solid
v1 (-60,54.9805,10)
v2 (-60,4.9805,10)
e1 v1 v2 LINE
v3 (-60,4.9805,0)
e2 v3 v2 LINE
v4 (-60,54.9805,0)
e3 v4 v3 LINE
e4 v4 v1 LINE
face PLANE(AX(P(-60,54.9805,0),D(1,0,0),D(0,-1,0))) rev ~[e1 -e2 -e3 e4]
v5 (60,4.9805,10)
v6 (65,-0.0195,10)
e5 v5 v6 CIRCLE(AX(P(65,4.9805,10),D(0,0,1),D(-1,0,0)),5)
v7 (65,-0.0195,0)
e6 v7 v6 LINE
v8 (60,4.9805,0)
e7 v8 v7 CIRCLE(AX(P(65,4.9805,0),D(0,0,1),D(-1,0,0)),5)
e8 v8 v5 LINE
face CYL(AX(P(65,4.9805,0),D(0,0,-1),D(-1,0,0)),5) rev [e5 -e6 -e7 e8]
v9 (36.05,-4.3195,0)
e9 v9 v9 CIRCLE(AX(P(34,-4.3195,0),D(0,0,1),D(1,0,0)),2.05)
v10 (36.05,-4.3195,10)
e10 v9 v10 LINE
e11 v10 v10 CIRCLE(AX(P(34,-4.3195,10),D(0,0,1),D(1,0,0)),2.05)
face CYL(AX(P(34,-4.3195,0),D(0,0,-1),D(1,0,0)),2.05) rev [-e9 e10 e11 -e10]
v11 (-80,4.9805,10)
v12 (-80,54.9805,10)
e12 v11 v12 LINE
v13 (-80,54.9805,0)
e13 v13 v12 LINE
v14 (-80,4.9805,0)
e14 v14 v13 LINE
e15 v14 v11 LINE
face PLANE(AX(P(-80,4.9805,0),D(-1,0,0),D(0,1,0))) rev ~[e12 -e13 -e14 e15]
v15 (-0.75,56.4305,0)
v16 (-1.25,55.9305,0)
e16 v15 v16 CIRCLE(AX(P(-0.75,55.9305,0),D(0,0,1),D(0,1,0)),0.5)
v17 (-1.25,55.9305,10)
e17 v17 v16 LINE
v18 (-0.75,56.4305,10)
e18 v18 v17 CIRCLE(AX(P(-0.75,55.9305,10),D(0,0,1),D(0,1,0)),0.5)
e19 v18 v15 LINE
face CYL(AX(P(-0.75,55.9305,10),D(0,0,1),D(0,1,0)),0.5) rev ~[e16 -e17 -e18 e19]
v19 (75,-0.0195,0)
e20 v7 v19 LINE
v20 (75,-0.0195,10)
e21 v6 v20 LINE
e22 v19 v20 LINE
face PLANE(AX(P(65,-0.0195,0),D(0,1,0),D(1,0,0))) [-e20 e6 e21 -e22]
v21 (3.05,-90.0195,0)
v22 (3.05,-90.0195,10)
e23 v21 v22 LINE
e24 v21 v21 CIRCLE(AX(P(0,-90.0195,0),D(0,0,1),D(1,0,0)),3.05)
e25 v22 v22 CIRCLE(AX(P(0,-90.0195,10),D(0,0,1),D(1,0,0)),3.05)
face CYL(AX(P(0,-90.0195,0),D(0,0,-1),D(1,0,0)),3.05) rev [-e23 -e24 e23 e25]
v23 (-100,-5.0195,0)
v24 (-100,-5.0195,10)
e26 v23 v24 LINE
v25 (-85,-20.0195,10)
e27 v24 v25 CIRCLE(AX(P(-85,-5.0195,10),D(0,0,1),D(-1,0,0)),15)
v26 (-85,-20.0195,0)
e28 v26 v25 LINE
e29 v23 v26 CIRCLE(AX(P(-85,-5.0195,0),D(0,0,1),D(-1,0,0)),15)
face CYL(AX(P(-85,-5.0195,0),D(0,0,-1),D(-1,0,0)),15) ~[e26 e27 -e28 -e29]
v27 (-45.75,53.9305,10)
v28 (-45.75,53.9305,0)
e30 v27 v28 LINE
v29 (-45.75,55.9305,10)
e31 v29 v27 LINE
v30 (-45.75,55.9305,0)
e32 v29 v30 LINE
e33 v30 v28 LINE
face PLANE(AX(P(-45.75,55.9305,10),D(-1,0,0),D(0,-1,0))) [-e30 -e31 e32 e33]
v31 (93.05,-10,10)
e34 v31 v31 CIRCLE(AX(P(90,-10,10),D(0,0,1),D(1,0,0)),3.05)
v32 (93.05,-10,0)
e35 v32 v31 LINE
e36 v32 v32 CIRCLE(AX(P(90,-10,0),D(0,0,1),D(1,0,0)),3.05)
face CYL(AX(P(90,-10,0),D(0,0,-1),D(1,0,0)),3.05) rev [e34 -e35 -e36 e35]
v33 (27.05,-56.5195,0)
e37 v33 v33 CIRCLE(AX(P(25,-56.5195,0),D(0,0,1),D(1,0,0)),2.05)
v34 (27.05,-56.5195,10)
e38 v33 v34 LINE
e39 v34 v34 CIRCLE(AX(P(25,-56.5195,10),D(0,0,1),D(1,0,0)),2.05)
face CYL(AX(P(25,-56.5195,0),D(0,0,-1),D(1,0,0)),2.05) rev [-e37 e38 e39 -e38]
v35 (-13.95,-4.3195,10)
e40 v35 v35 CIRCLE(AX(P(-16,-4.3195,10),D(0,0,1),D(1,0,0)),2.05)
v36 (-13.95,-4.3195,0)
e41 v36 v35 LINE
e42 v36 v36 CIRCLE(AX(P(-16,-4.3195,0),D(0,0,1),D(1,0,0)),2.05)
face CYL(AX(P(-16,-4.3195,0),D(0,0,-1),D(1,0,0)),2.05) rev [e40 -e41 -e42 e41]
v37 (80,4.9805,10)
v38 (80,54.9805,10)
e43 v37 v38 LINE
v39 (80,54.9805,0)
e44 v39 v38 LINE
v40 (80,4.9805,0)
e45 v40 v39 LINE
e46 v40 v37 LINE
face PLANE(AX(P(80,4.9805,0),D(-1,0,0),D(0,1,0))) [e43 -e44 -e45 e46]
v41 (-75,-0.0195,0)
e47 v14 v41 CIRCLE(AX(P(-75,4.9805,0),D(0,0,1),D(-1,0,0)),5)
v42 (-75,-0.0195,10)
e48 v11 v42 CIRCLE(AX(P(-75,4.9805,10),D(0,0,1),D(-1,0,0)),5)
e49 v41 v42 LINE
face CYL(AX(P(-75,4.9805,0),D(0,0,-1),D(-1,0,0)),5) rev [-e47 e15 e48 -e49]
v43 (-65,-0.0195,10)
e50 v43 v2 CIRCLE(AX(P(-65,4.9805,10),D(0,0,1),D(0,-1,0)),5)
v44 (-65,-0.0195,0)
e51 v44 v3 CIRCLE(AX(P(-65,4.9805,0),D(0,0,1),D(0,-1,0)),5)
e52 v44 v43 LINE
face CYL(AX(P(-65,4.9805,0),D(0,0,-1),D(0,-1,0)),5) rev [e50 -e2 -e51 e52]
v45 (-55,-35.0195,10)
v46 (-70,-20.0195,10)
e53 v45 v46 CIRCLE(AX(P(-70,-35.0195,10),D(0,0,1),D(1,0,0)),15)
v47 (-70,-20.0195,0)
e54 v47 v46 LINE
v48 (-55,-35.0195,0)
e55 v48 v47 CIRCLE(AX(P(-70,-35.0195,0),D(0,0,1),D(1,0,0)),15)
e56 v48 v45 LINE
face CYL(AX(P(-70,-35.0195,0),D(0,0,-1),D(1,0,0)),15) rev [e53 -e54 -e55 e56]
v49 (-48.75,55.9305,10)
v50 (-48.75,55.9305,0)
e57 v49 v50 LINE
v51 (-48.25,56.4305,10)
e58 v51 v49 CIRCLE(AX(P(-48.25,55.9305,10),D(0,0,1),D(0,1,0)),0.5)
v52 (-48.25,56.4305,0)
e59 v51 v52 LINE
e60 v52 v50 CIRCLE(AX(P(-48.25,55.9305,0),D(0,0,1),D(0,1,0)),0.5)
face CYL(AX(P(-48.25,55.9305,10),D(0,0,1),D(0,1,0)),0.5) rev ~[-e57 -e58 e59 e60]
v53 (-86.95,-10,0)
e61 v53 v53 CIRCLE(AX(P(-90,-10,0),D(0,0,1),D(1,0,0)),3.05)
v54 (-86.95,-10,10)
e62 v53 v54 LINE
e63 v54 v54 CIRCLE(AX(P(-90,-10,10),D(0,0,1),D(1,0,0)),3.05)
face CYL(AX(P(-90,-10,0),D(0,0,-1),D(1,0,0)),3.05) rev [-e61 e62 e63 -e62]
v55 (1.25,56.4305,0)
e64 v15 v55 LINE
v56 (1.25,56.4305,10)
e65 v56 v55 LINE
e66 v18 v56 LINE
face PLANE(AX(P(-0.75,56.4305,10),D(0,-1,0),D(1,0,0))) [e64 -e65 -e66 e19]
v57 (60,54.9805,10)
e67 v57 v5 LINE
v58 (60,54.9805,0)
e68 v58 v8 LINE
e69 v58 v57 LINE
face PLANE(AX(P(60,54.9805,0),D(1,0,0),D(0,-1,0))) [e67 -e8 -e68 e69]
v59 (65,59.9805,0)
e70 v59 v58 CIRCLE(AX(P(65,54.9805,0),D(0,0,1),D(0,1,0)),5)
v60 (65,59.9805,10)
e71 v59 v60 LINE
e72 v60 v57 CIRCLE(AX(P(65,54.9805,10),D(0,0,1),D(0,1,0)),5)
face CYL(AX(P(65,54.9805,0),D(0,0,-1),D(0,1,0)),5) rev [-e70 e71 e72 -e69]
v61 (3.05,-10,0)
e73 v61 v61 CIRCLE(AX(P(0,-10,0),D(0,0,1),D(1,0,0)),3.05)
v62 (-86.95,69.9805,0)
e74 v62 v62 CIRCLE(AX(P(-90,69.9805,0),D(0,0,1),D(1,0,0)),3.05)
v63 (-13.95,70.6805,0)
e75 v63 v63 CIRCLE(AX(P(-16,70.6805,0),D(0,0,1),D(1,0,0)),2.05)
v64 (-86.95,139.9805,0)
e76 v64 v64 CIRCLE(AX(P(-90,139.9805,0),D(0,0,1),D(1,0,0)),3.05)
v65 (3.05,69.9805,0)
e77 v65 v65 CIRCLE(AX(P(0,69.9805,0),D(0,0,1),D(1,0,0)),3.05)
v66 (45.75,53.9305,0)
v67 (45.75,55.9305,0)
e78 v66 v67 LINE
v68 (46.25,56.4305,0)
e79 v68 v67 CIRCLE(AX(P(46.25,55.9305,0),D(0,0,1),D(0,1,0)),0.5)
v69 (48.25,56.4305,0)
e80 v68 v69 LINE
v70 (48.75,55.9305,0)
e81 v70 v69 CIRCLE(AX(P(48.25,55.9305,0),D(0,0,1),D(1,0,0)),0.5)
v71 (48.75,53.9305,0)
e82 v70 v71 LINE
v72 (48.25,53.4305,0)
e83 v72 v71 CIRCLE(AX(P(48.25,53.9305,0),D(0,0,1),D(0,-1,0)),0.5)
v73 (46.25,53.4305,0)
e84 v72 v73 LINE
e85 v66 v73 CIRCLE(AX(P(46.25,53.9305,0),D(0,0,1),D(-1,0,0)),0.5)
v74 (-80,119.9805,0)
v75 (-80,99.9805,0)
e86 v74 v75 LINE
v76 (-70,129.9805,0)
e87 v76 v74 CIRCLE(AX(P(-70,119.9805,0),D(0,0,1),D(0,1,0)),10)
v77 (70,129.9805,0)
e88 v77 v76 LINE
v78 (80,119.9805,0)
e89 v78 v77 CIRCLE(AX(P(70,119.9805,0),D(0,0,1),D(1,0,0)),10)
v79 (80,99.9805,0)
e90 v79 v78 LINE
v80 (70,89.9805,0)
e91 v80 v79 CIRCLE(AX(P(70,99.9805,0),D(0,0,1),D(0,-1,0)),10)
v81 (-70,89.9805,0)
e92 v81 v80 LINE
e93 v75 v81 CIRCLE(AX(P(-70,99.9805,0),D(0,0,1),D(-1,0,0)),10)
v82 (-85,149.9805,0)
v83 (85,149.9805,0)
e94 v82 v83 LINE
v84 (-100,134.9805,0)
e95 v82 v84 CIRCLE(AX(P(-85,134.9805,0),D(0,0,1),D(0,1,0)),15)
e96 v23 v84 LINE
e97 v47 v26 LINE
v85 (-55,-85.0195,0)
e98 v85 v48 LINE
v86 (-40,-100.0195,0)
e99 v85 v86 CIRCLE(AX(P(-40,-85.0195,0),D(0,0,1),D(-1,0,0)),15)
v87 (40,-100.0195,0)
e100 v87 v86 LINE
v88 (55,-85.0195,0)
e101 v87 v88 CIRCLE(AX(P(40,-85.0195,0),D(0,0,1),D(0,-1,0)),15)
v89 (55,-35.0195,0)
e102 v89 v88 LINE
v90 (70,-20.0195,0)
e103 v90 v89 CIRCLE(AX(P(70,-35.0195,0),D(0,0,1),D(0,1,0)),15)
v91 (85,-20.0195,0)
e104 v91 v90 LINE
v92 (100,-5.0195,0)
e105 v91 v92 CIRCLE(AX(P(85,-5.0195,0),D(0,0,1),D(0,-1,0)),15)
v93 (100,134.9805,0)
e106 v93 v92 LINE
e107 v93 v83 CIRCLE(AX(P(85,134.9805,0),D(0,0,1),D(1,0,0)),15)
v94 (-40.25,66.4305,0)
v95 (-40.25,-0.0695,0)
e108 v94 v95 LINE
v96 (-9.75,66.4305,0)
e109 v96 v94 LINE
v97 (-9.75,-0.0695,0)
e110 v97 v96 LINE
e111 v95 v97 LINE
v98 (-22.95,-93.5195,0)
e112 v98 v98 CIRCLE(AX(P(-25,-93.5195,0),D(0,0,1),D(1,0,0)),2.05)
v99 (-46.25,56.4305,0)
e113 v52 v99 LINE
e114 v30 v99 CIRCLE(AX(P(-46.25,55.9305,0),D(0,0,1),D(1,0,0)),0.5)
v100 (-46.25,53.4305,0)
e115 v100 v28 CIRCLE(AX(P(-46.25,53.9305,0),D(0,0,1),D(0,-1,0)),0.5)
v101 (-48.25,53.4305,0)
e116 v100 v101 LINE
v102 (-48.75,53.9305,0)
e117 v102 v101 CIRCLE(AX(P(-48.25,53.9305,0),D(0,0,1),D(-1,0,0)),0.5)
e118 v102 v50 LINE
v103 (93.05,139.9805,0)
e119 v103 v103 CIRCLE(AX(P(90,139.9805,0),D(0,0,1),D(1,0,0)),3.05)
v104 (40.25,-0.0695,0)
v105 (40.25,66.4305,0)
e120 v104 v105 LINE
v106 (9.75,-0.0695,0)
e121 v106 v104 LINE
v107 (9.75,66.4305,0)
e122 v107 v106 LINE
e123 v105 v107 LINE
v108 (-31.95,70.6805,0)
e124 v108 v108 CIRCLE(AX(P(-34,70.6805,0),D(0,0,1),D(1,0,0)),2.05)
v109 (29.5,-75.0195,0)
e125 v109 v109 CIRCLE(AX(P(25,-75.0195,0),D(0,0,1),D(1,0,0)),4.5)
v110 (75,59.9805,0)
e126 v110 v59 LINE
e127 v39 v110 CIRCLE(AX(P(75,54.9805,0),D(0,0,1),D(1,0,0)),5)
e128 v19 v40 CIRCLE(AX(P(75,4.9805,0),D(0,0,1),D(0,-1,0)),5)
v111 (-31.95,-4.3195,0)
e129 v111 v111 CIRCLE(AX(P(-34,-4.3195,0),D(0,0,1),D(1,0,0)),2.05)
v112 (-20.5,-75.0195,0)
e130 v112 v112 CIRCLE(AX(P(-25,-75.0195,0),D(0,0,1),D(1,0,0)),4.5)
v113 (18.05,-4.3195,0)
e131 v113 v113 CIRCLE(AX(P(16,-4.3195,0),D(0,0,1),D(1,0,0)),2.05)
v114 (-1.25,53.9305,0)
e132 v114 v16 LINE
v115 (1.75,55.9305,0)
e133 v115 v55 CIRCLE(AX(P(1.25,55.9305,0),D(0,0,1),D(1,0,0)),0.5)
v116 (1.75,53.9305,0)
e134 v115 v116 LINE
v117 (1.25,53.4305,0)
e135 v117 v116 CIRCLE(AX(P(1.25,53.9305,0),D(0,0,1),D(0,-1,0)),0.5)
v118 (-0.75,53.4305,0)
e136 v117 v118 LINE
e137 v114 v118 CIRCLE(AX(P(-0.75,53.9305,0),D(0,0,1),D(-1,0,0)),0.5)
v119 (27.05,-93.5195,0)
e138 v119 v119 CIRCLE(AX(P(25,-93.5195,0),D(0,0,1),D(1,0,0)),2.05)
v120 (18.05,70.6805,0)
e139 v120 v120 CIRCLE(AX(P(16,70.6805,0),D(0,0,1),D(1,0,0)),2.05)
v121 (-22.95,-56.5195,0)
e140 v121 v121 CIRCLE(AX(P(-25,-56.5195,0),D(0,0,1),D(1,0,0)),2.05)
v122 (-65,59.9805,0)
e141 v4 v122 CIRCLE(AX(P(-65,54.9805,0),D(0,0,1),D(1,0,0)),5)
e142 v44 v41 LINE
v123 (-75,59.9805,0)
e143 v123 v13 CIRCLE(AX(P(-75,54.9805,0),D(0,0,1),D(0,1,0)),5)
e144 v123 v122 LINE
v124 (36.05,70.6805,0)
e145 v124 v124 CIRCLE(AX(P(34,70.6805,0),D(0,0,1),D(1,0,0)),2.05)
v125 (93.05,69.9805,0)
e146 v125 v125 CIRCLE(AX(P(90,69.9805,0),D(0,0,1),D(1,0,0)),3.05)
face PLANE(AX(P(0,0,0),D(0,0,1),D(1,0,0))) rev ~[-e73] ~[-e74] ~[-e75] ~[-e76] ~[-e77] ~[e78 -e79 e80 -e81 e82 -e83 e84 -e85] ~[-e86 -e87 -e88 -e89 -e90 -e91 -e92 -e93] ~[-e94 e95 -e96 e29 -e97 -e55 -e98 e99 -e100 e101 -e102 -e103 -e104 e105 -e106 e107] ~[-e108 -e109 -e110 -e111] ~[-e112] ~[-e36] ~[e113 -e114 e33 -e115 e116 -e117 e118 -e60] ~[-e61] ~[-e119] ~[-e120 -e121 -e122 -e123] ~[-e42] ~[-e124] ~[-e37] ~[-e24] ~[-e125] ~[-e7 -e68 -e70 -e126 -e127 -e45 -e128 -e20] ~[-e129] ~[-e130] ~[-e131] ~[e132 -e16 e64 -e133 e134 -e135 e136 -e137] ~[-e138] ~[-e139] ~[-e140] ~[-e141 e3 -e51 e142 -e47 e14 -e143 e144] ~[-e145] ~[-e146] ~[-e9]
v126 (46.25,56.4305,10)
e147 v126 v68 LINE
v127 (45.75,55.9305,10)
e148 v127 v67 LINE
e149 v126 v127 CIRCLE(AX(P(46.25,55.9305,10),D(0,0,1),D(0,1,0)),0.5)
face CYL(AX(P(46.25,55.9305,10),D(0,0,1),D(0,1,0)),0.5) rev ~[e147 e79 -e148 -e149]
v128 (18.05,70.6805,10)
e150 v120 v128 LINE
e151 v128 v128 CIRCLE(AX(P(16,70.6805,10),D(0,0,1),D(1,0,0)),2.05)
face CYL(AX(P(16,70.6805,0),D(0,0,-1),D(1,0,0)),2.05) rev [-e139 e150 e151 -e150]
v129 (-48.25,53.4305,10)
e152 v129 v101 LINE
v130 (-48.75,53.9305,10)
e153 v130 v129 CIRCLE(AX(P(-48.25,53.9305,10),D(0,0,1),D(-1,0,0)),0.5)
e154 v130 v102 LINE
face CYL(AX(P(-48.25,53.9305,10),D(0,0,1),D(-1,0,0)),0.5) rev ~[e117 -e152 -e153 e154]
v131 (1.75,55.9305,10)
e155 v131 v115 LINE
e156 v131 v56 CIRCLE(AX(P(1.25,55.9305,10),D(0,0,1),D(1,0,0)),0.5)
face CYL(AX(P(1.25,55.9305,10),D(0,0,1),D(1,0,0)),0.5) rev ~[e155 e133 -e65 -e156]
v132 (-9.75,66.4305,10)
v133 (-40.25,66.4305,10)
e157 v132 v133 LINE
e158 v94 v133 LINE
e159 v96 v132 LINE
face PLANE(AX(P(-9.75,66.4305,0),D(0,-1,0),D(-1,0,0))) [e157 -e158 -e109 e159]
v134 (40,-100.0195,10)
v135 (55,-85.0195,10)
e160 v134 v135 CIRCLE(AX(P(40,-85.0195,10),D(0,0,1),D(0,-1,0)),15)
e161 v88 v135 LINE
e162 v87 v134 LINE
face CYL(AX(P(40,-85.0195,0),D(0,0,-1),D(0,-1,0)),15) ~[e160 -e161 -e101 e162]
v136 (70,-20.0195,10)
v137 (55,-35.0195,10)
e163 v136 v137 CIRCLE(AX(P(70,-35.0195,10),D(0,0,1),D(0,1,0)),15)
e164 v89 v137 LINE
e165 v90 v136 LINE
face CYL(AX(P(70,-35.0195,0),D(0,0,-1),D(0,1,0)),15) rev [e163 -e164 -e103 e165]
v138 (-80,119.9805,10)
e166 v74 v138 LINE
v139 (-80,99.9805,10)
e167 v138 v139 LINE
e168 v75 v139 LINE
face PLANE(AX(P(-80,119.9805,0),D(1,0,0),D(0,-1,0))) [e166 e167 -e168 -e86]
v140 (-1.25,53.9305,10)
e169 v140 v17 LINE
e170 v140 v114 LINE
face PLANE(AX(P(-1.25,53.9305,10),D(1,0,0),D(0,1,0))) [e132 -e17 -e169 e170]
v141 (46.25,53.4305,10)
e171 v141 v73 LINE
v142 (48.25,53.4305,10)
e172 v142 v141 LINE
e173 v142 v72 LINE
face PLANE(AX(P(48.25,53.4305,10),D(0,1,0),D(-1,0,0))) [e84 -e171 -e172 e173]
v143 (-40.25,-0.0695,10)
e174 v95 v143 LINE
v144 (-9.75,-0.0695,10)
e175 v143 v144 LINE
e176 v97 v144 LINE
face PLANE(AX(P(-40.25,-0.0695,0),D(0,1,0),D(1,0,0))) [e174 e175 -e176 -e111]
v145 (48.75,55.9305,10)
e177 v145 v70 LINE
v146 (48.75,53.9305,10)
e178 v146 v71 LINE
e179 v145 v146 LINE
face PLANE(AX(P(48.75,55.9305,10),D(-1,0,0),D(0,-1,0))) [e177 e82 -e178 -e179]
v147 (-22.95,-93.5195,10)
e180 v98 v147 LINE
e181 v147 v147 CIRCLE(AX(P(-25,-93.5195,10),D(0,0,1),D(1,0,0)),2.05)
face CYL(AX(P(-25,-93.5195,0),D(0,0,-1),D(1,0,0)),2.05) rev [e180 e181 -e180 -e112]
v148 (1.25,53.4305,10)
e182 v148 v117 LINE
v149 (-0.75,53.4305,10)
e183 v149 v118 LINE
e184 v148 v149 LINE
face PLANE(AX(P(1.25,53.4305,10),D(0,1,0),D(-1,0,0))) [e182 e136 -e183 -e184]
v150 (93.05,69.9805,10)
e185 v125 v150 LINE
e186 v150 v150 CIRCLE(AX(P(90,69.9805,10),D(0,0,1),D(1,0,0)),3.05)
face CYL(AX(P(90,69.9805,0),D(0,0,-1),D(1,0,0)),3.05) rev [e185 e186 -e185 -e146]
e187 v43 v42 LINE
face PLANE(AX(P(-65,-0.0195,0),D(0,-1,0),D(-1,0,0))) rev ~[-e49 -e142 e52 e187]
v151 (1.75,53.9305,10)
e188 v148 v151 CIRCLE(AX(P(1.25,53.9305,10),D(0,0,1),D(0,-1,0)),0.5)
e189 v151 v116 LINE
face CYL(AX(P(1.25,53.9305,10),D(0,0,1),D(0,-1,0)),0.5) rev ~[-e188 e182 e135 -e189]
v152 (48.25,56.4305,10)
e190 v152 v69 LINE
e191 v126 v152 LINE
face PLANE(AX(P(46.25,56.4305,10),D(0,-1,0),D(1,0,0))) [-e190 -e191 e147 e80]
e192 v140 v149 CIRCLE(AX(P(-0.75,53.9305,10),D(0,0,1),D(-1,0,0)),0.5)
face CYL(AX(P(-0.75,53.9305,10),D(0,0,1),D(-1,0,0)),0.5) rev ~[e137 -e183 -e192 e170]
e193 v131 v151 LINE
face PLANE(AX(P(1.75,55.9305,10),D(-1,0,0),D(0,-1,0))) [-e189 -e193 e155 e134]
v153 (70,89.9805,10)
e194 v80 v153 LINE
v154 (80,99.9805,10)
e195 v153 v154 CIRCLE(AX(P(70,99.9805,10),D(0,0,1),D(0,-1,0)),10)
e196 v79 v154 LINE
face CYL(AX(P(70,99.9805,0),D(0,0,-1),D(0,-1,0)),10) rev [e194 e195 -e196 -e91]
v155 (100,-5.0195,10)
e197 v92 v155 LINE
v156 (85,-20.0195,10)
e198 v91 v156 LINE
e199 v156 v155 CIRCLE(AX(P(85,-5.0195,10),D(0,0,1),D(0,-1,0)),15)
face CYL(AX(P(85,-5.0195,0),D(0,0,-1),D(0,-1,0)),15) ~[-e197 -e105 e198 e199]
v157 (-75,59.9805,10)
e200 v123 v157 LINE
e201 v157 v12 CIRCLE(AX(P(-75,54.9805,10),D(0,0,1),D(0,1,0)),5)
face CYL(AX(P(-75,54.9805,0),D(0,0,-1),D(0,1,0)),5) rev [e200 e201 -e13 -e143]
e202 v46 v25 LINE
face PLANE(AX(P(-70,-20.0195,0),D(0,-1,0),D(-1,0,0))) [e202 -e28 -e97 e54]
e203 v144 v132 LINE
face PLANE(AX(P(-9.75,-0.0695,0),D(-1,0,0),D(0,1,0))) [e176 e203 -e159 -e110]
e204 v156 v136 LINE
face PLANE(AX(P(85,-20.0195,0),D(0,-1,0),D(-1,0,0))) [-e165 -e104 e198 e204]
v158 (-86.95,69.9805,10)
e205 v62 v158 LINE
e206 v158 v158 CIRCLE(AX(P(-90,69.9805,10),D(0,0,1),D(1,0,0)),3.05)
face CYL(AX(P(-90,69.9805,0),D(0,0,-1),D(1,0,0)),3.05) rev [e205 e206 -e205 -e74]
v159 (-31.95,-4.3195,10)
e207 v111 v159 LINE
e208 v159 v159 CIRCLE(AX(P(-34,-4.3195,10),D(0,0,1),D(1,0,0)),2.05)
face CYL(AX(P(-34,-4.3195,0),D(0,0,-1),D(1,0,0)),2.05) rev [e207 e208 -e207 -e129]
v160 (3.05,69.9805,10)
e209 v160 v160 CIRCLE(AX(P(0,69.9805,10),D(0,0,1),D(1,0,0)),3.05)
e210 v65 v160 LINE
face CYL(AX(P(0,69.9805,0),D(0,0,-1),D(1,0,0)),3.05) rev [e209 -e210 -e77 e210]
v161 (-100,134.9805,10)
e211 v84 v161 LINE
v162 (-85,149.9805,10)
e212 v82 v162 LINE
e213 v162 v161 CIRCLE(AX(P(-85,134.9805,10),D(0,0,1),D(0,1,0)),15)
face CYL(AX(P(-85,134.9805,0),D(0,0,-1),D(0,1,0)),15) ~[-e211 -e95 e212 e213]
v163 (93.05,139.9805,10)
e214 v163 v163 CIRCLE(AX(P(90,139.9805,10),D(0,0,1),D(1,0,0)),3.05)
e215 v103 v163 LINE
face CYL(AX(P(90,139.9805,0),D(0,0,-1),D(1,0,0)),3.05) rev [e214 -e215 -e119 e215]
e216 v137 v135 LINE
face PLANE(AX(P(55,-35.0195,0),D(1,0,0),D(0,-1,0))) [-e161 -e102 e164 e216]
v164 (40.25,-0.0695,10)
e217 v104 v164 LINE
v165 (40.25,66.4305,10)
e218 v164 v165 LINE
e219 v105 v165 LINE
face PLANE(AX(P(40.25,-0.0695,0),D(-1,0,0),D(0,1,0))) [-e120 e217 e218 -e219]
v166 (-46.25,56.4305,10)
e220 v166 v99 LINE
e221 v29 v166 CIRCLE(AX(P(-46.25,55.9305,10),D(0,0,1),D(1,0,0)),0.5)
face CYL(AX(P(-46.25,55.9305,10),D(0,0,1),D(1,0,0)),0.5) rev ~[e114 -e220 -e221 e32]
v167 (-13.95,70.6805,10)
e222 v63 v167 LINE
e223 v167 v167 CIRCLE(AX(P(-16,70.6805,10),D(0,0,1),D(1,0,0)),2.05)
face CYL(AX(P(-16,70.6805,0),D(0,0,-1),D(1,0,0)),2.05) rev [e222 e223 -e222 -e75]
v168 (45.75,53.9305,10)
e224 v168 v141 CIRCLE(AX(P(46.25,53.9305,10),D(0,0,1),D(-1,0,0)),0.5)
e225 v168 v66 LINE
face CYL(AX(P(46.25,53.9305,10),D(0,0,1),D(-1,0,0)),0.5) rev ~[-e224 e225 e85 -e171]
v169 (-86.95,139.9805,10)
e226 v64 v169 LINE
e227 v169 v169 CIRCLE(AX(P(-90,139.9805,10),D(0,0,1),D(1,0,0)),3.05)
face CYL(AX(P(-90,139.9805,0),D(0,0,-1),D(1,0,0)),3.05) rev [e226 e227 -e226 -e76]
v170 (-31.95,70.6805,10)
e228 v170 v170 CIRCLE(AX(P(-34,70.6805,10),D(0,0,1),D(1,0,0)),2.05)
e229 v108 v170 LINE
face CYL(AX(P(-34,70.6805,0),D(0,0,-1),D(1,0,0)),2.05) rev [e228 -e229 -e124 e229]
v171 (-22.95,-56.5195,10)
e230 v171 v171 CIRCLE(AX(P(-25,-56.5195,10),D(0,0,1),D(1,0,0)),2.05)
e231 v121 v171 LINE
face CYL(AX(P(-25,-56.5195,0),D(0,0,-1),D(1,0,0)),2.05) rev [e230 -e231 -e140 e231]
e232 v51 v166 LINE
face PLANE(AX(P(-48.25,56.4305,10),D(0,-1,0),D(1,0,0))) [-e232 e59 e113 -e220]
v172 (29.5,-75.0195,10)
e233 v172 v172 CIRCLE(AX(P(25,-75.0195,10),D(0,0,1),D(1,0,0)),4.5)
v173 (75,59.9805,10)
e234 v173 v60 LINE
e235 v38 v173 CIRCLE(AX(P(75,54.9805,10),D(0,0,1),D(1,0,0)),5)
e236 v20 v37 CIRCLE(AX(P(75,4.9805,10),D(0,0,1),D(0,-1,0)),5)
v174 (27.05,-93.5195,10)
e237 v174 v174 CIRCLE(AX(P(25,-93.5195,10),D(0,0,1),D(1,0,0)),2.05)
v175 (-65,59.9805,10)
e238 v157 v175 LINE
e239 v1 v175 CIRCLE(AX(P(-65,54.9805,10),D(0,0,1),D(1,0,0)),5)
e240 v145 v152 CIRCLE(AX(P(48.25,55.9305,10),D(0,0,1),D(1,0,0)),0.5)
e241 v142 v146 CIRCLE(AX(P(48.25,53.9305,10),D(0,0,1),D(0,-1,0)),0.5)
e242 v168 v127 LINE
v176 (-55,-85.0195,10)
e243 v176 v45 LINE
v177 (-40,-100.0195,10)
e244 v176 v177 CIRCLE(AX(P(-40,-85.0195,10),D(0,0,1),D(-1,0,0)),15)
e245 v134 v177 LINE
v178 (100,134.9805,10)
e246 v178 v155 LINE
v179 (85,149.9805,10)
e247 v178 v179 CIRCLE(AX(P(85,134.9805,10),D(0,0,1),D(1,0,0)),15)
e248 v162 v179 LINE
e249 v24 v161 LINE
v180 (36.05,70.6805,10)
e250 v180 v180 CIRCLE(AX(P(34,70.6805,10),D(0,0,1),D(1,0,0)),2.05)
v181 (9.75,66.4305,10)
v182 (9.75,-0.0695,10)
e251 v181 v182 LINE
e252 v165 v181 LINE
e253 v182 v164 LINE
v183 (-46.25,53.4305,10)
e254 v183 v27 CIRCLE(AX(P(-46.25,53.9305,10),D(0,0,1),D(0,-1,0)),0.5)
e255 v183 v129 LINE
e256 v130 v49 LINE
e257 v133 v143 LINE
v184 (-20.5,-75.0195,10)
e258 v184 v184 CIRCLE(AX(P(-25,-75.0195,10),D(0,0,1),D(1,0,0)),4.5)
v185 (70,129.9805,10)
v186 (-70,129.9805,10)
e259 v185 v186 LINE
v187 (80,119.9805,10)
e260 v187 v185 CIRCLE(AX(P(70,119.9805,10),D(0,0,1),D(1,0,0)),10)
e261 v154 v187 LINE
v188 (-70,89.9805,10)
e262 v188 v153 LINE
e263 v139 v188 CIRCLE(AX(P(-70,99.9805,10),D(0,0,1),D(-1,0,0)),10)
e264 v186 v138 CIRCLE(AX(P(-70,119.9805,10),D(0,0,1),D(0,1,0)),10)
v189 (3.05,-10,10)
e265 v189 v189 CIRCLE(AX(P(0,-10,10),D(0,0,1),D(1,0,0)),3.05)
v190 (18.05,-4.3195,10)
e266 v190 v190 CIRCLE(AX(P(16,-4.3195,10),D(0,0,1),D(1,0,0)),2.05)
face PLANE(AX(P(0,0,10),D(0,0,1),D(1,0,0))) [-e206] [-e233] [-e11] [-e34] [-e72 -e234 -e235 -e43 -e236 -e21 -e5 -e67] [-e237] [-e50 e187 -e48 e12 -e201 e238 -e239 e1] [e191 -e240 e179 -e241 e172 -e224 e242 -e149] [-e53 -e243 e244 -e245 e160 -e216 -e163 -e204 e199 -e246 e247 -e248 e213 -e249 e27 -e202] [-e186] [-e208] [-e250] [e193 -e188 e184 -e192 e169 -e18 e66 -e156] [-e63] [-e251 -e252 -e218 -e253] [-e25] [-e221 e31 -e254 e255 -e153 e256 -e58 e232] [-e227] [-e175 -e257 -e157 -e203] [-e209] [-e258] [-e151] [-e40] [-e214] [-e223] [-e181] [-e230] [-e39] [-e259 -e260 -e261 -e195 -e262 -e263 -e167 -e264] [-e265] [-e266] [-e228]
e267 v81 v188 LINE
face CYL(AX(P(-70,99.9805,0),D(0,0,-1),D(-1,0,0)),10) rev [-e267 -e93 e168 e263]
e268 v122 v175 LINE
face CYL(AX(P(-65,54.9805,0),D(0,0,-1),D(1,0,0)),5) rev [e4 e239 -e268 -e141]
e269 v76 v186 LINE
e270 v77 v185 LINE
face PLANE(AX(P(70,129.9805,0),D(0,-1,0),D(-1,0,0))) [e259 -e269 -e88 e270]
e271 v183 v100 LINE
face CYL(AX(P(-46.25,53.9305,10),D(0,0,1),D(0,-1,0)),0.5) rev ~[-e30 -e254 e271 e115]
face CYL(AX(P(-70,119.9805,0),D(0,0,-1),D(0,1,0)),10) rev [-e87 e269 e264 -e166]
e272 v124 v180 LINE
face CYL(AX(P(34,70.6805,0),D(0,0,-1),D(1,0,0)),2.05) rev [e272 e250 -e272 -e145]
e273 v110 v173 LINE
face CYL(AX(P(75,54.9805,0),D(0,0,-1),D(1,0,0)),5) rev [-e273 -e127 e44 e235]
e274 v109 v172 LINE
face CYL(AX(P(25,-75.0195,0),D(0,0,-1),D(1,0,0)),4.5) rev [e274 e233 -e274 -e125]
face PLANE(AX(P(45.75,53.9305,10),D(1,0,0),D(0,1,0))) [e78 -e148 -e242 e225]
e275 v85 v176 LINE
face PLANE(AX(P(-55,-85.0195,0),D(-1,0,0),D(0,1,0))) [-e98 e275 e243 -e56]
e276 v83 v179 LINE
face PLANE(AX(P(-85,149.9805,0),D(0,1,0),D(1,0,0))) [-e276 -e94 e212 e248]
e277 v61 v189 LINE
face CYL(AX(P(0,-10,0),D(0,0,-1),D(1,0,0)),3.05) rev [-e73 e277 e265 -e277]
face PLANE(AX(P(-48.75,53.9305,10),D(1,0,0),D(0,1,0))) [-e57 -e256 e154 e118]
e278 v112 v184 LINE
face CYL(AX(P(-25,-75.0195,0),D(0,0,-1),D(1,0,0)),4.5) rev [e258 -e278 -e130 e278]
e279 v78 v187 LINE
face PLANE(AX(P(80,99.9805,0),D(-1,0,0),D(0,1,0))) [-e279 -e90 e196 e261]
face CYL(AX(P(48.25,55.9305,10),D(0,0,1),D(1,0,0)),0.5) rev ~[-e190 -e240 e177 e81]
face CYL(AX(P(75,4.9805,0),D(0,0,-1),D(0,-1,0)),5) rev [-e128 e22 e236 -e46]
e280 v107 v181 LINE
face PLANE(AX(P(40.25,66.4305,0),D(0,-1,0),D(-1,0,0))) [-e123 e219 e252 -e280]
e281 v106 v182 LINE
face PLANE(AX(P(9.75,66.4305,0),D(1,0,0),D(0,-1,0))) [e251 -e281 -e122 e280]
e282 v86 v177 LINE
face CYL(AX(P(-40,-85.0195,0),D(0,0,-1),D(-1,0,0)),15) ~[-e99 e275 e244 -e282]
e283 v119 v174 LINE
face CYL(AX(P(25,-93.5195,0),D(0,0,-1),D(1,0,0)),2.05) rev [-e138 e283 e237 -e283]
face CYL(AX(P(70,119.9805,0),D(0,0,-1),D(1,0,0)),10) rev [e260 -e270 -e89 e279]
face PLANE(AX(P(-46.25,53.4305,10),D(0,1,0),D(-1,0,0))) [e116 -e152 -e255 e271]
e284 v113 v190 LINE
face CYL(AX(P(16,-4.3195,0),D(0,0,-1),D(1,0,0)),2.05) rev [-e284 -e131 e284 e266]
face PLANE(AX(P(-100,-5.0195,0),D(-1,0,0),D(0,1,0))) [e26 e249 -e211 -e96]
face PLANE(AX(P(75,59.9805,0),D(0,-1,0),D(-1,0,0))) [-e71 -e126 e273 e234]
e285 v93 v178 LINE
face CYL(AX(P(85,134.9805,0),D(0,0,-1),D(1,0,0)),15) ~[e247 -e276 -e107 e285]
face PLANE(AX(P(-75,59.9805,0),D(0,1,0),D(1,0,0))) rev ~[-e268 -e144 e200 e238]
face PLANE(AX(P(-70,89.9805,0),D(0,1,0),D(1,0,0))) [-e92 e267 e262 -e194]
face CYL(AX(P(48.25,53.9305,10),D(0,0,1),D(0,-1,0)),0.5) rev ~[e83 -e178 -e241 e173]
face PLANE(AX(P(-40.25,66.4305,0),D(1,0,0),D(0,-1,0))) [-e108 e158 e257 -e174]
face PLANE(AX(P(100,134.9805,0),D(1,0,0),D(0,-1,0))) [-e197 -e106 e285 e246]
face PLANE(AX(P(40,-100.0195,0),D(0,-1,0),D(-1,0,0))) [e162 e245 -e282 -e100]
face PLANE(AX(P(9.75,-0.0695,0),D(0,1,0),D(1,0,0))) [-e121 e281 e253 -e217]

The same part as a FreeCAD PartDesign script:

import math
import FreeCAD as App
import Part
import Sketcher

V = App.Vector
Q = App.Units.Quantity


def add_polygon(sketch, points):
    """Adds a closed chain of lines whose ends are joined by coincident constraints."""
    first, n = sketch.GeometryCount, len(points)
    for a, b in zip(points, points[1:] + points[:1]):
        sketch.addGeometry(Part.LineSegment(App.Vector(*a, 0), App.Vector(*b, 0)), False)
    for i in range(n):
        sketch.addConstraint(Sketcher.Constraint("Coincident", first + i, 2, first + (i + 1) % n, 1))

doc = App.newDocument("Part")
params = doc.addObject("Spreadsheet::Sheet", "Params")
for row, (alias, value) in enumerate([
    ("sketch1_diameter", "9 mm"),
    ("sketch1_radius", "15 mm"),
    ("sketch1_radius2", "5 mm"),
    ("sketch1_radius3", "10 mm"),
    ("sketch1_diameter2", "4.1 mm"),
    ("pad1_length", "10 mm"),
    ("sketch2_radius", "0.5 mm"),
    ("sketch2_width", "2 mm"),
    ("pocket1_length", "10 mm"),
], start=1):
    params.set(f"A{row}", alias)
    params.set(f"B{row}", "=" + value)
    params.setAlias(f"B{row}", alias)

body = doc.addObject("PartDesign::Body", "Body")

# Sketch on XY plane
sketch1 = doc.addObject("Sketcher::SketchObject", "Sketch")
body.addObject(sketch1)
sketch1.AttachmentSupport = (doc.XY_Plane, [""])
sketch1.MapMode = "FlatFace"
sketch1.addGeometry(Part.LineSegment(V(-40, -100, 0), V(40, -100, 0)), False)  # 0
sketch1.addGeometry(Part.ArcOfCircle(Part.Circle(V(40, -85, 0), V(0, 0, 1), 15), math.radians(-90), math.radians(0)), False)  # 1
sketch1.addGeometry(Part.LineSegment(V(55, -85, 0), V(55, -35, 0)), False)  # 2
sketch1.addGeometry(Part.ArcOfCircle(Part.Circle(V(70, -35, 0), V(0, 0, 1), 15), math.radians(90), math.radians(180)), False)  # 3
sketch1.addGeometry(Part.LineSegment(V(70, -20, 0), V(85, -20, 0)), False)  # 4
sketch1.addGeometry(Part.ArcOfCircle(Part.Circle(V(85, -5, 0), V(0, 0, 1), 15), math.radians(-90), math.radians(0)), False)  # 5
sketch1.addGeometry(Part.LineSegment(V(100, -5, 0), V(100, 135, 0)), False)  # 6
sketch1.addGeometry(Part.ArcOfCircle(Part.Circle(V(85, 135, 0), V(0, 0, 1), 15), math.radians(0), math.radians(90)), False)  # 7
sketch1.addGeometry(Part.LineSegment(V(85, 150, 0), V(-85, 150, 0)), False)  # 8
sketch1.addGeometry(Part.ArcOfCircle(Part.Circle(V(-85, 135, 0), V(0, 0, 1), 15), math.radians(90), math.radians(180)), False)  # 9
sketch1.addGeometry(Part.LineSegment(V(-100, 135, 0), V(-100, -5, 0)), False)  # 10
sketch1.addGeometry(Part.ArcOfCircle(Part.Circle(V(-85, -5, 0), V(0, 0, 1), 15), math.radians(180), math.radians(270)), False)  # 11
sketch1.addGeometry(Part.LineSegment(V(-85, -20, 0), V(-70, -20, 0)), False)  # 12
sketch1.addGeometry(Part.ArcOfCircle(Part.Circle(V(-70, -35, 0), V(0, 0, 1), 15), math.radians(0), math.radians(90)), False)  # 13
sketch1.addGeometry(Part.LineSegment(V(-55, -35, 0), V(-55, -85, 0)), False)  # 14
sketch1.addGeometry(Part.ArcOfCircle(Part.Circle(V(-40, -85, 0), V(0, 0, 1), 15), math.radians(180), math.radians(270)), False)  # 15
sketch1.addGeometry(Part.Circle(V(-25, -93.5, 0), V(0, 0, 1), 2), False)  # 16
sketch1.addGeometry(Part.Circle(V(-25, -75, 0), V(0, 0, 1), 4.5), False)  # 17
sketch1.addGeometry(Part.Circle(V(-25, -56.5, 0), V(0, 0, 1), 2), False)  # 18
sketch1.addGeometry(Part.Circle(V(-90, -10, 0), V(0, 0, 1), 3), False)  # 19
sketch1.addGeometry(Part.Circle(V(-34, -4.3, 0), V(0, 0, 1), 2), False)  # 20
sketch1.addGeometry(Part.Circle(V(-16, -4.3, 0), V(0, 0, 1), 2), False)  # 21
sketch1.addGeometry(Part.Circle(V(0, -90, 0), V(0, 0, 1), 3), False)  # 22
sketch1.addGeometry(Part.Circle(V(25, -93.5, 0), V(0, 0, 1), 2), False)  # 23
sketch1.addGeometry(Part.Circle(V(25, -75, 0), V(0, 0, 1), 4.5), False)  # 24
sketch1.addGeometry(Part.Circle(V(25, -56.5, 0), V(0, 0, 1), 2), False)  # 25
sketch1.addGeometry(Part.Circle(V(0, -10, 0), V(0, 0, 1), 3), False)  # 26
sketch1.addGeometry(Part.Circle(V(16, -4.3, 0), V(0, 0, 1), 2), False)  # 27
sketch1.addGeometry(Part.Circle(V(34, -4.3, 0), V(0, 0, 1), 2), False)  # 28
sketch1.addGeometry(Part.Circle(V(90, -10, 0), V(0, 0, 1), 3), False)  # 29
sketch1.addGeometry(Part.ArcOfCircle(Part.Circle(V(-75, 55, 0), V(0, 0, 1), 5), math.radians(90), math.radians(180)), False)  # 30
sketch1.addGeometry(Part.LineSegment(V(-75, 60, 0), V(-65, 60, 0)), False)  # 31
sketch1.addGeometry(Part.ArcOfCircle(Part.Circle(V(-65, 55, 0), V(0, 0, 1), 5), math.radians(0), math.radians(90)), False)  # 32
sketch1.addGeometry(Part.LineSegment(V(-60, 55, 0), V(-60, 5, 0)), False)  # 33
sketch1.addGeometry(Part.ArcOfCircle(Part.Circle(V(-65, 5, 0), V(0, 0, 1), 5), math.radians(-90), math.radians(0)), False)  # 34
sketch1.addGeometry(Part.LineSegment(V(-65, 0, 0), V(-75, 0, 0)), False)  # 35
sketch1.addGeometry(Part.ArcOfCircle(Part.Circle(V(-75, 5, 0), V(0, 0, 1), 5), math.radians(180), math.radians(270)), False)  # 36
sketch1.addGeometry(Part.LineSegment(V(-80, 5, 0), V(-80, 55, 0)), False)  # 37
sketch1.addGeometry(Part.Circle(V(-90, 70, 0), V(0, 0, 1), 3), False)  # 38
add_polygon(sketch1, [(-9.8, -0.1), (-40.2, -0.1), (-40.2, 66.4), (-9.8, 66.4)])  # lines 39-42
sketch1.addGeometry(Part.Circle(V(-34, 70.7, 0), V(0, 0, 1), 2), False)  # 43
sketch1.addGeometry(Part.Circle(V(-16, 70.7, 0), V(0, 0, 1), 2), False)  # 44
sketch1.addGeometry(Part.Circle(V(-90, 140, 0), V(0, 0, 1), 3), False)  # 45
add_polygon(sketch1, [(40.2, -0.1), (9.8, -0.1), (9.8, 66.4), (40.2, 66.4)])  # lines 46-49
sketch1.addGeometry(Part.Circle(V(0, 70, 0), V(0, 0, 1), 3), False)  # 50
sketch1.addGeometry(Part.Circle(V(16, 70.7, 0), V(0, 0, 1), 2), False)  # 51
sketch1.addGeometry(Part.Circle(V(34, 70.7, 0), V(0, 0, 1), 2), False)  # 52
sketch1.addGeometry(Part.LineSegment(V(65, 60, 0), V(75, 60, 0)), False)  # 53
sketch1.addGeometry(Part.ArcOfCircle(Part.Circle(V(75, 55, 0), V(0, 0, 1), 5), math.radians(0), math.radians(90)), False)  # 54
sketch1.addGeometry(Part.LineSegment(V(80, 55, 0), V(80, 5, 0)), False)  # 55
sketch1.addGeometry(Part.ArcOfCircle(Part.Circle(V(75, 5, 0), V(0, 0, 1), 5), math.radians(-90), math.radians(0)), False)  # 56
sketch1.addGeometry(Part.LineSegment(V(75, 0, 0), V(65, 0, 0)), False)  # 57
sketch1.addGeometry(Part.ArcOfCircle(Part.Circle(V(65, 5, 0), V(0, 0, 1), 5), math.radians(180), math.radians(270)), False)  # 58
sketch1.addGeometry(Part.LineSegment(V(60, 5, 0), V(60, 55, 0)), False)  # 59
sketch1.addGeometry(Part.ArcOfCircle(Part.Circle(V(65, 55, 0), V(0, 0, 1), 5), math.radians(90), math.radians(180)), False)  # 60
sketch1.addGeometry(Part.Circle(V(90, 70, 0), V(0, 0, 1), 3), False)  # 61
sketch1.addGeometry(Part.LineSegment(V(-70, 130, 0), V(70, 130, 0)), False)  # 62
sketch1.addGeometry(Part.ArcOfCircle(Part.Circle(V(70, 120, 0), V(0, 0, 1), 10), math.radians(0), math.radians(90)), False)  # 63
sketch1.addGeometry(Part.LineSegment(V(80, 120, 0), V(80, 100, 0)), False)  # 64
sketch1.addGeometry(Part.ArcOfCircle(Part.Circle(V(70, 100, 0), V(0, 0, 1), 10), math.radians(-90), math.radians(0)), False)  # 65
sketch1.addGeometry(Part.LineSegment(V(70, 90, 0), V(-70, 90, 0)), False)  # 66
sketch1.addGeometry(Part.ArcOfCircle(Part.Circle(V(-70, 100, 0), V(0, 0, 1), 10), math.radians(180), math.radians(270)), False)  # 67
sketch1.addGeometry(Part.LineSegment(V(-80, 100, 0), V(-80, 120, 0)), False)  # 68
sketch1.addGeometry(Part.ArcOfCircle(Part.Circle(V(-70, 120, 0), V(0, 0, 1), 10), math.radians(90), math.radians(180)), False)  # 69
sketch1.addGeometry(Part.Circle(V(90, 140, 0), V(0, 0, 1), 3), False)  # 70
sketch1.addConstraint([
    Sketcher.Constraint("Tangent", 0, 2, 1, 1),
    Sketcher.Constraint("Tangent", 1, 2, 2, 1),
    Sketcher.Constraint("Tangent", 2, 2, 3, 2),
    Sketcher.Constraint("Tangent", 3, 1, 4, 1),
    Sketcher.Constraint("Tangent", 4, 2, 5, 1),
    Sketcher.Constraint("Tangent", 5, 2, 6, 1),
    Sketcher.Constraint("Tangent", 6, 2, 7, 1),
    Sketcher.Constraint("Tangent", 7, 2, 8, 1),
    Sketcher.Constraint("Tangent", 8, 2, 9, 1),
    Sketcher.Constraint("Tangent", 9, 2, 10, 1),
    Sketcher.Constraint("Tangent", 10, 2, 11, 1),
    Sketcher.Constraint("Tangent", 11, 2, 12, 1),
    Sketcher.Constraint("Tangent", 12, 2, 13, 2),
    Sketcher.Constraint("Tangent", 13, 1, 14, 1),
    Sketcher.Constraint("Tangent", 14, 2, 15, 1),
    Sketcher.Constraint("Tangent", 15, 2, 0, 1),
    Sketcher.Constraint("Tangent", 30, 1, 31, 1),
    Sketcher.Constraint("Tangent", 31, 2, 32, 2),
    Sketcher.Constraint("Tangent", 32, 1, 33, 1),
    Sketcher.Constraint("Tangent", 33, 2, 34, 2),
    Sketcher.Constraint("Tangent", 34, 1, 35, 1),
    Sketcher.Constraint("Tangent", 35, 2, 36, 2),
    Sketcher.Constraint("Tangent", 36, 1, 37, 1),
    Sketcher.Constraint("Tangent", 37, 2, 30, 2),
    Sketcher.Constraint("Tangent", 53, 2, 54, 2),
    Sketcher.Constraint("Tangent", 54, 1, 55, 1),
    Sketcher.Constraint("Tangent", 55, 2, 56, 2),
    Sketcher.Constraint("Tangent", 56, 1, 57, 1),
    Sketcher.Constraint("Tangent", 57, 2, 58, 2),
    Sketcher.Constraint("Tangent", 58, 1, 59, 1),
    Sketcher.Constraint("Tangent", 59, 2, 60, 2),
    Sketcher.Constraint("Tangent", 60, 1, 53, 1),
    Sketcher.Constraint("Tangent", 62, 2, 63, 2),
    Sketcher.Constraint("Tangent", 63, 1, 64, 1),
    Sketcher.Constraint("Tangent", 64, 2, 65, 2),
    Sketcher.Constraint("Tangent", 65, 1, 66, 1),
    Sketcher.Constraint("Tangent", 66, 2, 67, 2),
    Sketcher.Constraint("Tangent", 67, 1, 68, 1),
    Sketcher.Constraint("Tangent", 68, 2, 69, 2),
    Sketcher.Constraint("Tangent", 69, 1, 62, 1),
    Sketcher.Constraint("Horizontal", 0),
    Sketcher.Constraint("Vertical", 2),
    Sketcher.Constraint("Horizontal", 4),
    Sketcher.Constraint("Vertical", 6),
    Sketcher.Constraint("Horizontal", 8),
    Sketcher.Constraint("Vertical", 10),
    Sketcher.Constraint("Horizontal", 12),
    Sketcher.Constraint("Vertical", 14),
    Sketcher.Constraint("Horizontal", 31),
    Sketcher.Constraint("Vertical", 33),
    Sketcher.Constraint("Horizontal", 35),
    Sketcher.Constraint("Vertical", 37),
    Sketcher.Constraint("Horizontal", 39),
    Sketcher.Constraint("Vertical", 40),
    Sketcher.Constraint("Horizontal", 41),
    Sketcher.Constraint("Vertical", 42),
    Sketcher.Constraint("Horizontal", 46),
    Sketcher.Constraint("Vertical", 47),
    Sketcher.Constraint("Horizontal", 48),
    Sketcher.Constraint("Vertical", 49),
    Sketcher.Constraint("Horizontal", 53),
    Sketcher.Constraint("Vertical", 55),
    Sketcher.Constraint("Horizontal", 57),
    Sketcher.Constraint("Vertical", 59),
    Sketcher.Constraint("Horizontal", 62),
    Sketcher.Constraint("Vertical", 64),
    Sketcher.Constraint("Horizontal", 66),
    Sketcher.Constraint("Vertical", 68),
    Sketcher.Constraint("Equal", 1, 3),
    Sketcher.Constraint("Equal", 3, 5),
    Sketcher.Constraint("Equal", 5, 7),
    Sketcher.Constraint("Equal", 7, 9),
    Sketcher.Constraint("Equal", 9, 11),
    Sketcher.Constraint("Equal", 11, 13),
    Sketcher.Constraint("Equal", 13, 15),
    Sketcher.Constraint("Equal", 16, 18),
    Sketcher.Constraint("Equal", 18, 20),
    Sketcher.Constraint("Equal", 20, 21),
    Sketcher.Constraint("Equal", 19, 22),
    Sketcher.Constraint("Equal", 21, 23),
    Sketcher.Constraint("Equal", 17, 24),
    Sketcher.Constraint("Equal", 23, 25),
    Sketcher.Constraint("Equal", 22, 26),
    Sketcher.Constraint("Equal", 25, 27),
    Sketcher.Constraint("Equal", 27, 28),
    Sketcher.Constraint("Equal", 26, 29),
    Sketcher.Constraint("Equal", 30, 32),
    Sketcher.Constraint("Equal", 32, 34),
    Sketcher.Constraint("Equal", 34, 36),
    Sketcher.Constraint("Equal", 29, 38),
    Sketcher.Constraint("Equal", 28, 43),
    Sketcher.Constraint("Equal", 43, 44),
    Sketcher.Constraint("Equal", 38, 45),
    Sketcher.Constraint("Equal", 45, 50),
    Sketcher.Constraint("Equal", 44, 51),
    Sketcher.Constraint("Equal", 51, 52),
    Sketcher.Constraint("Equal", 36, 54),
    Sketcher.Constraint("Equal", 54, 56),
    Sketcher.Constraint("Equal", 56, 58),
    Sketcher.Constraint("Equal", 58, 60),
    Sketcher.Constraint("Equal", 50, 61),
    Sketcher.Constraint("Equal", 63, 65),
    Sketcher.Constraint("Equal", 65, 67),
    Sketcher.Constraint("Equal", 67, 69),
    Sketcher.Constraint("Equal", 61, 70),
    Sketcher.Constraint("Symmetric", 5, 3, 11, 3, -2),
    Sketcher.Constraint("Symmetric", 16, 3, 23, 3, -2),
    Sketcher.Constraint("Symmetric", 17, 3, 24, 3, -2),
    Sketcher.Constraint("Symmetric", 18, 3, 25, 3, -2),
    Sketcher.Constraint("Symmetric", 21, 3, 27, 3, -2),
    Sketcher.Constraint("Symmetric", 20, 3, 28, 3, -2),
    Sketcher.Constraint("Symmetric", 19, 3, 29, 3, -2),
    Sketcher.Constraint("Symmetric", 44, 3, 51, 3, -2),
    Sketcher.Constraint("Symmetric", 43, 3, 52, 3, -2),
    Sketcher.Constraint("Symmetric", 30, 3, 54, 3, -2),
    Sketcher.Constraint("Symmetric", 34, 3, 58, 3, -2),
    Sketcher.Constraint("Symmetric", 38, 3, 61, 3, -2),
    Sketcher.Constraint("Symmetric", 45, 3, 70, 3, -2),
    Sketcher.Constraint("Symmetric", 42, 2, 46, 2, -2),
    Sketcher.Constraint("Symmetric", 40, 2, 48, 2, -2),
    Sketcher.Constraint("PointOnObject", 22, 3, -2),
    Sketcher.Constraint("PointOnObject", 26, 3, -2),
    Sketcher.Constraint("PointOnObject", 50, 3, -2),
    Sketcher.Constraint("Horizontal", 20, 3, 21, 3),
    Sketcher.Constraint("Horizontal", 19, 3, 26, 3),
    Sketcher.Constraint("Horizontal", 43, 3, 44, 3),
    Sketcher.Constraint("Horizontal", 38, 3, 50, 3),
    Sketcher.Constraint("Vertical", 16, 3, 17, 3),
    Sketcher.Constraint("Vertical", 17, 3, 18, 3),
    Sketcher.Constraint("Vertical", 19, 3, 38, 3),
    Sketcher.Constraint("Vertical", 20, 3, 43, 3),
    Sketcher.Constraint("Vertical", 21, 3, 44, 3),
    Sketcher.Constraint("Vertical", 38, 3, 45, 3),
    Sketcher.Constraint("Vertical", 3, 3, 63, 3),
    Sketcher.Constraint("Vertical", 13, 3, 67, 3),
    Sketcher.Constraint("Vertical", 55, 2, 63, 1),
    Sketcher.Constraint("Vertical", 37, 2, 67, 1),
    Sketcher.Constraint("Equal", 66, 6),
    Sketcher.Constraint("Equal", 14, 33),
    Sketcher.Constraint("Diameter", 17, Q("9 mm")),
    Sketcher.Constraint("Radius", 1, Q("15 mm")),
    Sketcher.Constraint("Radius", 30, Q("5 mm")),
    Sketcher.Constraint("Radius", 63, Q("10 mm")),
    Sketcher.Constraint("Diameter", 16, Q("4.1 mm")),
    Sketcher.Constraint("Diameter", 19, Q("6.1 mm")),
    Sketcher.Constraint("DistanceX", 4, 1, 4, 2, Q("15 mm")),
    Sketcher.Constraint("DistanceX", 8, 2, 8, 1, Q("170 mm")),
    Sketcher.Constraint("DistanceX", 31, 1, 31, 2, Q("10 mm")),
    Sketcher.Constraint("DistanceY", 64, 2, 64, 1, Q("20 mm")),
    Sketcher.Constraint("DistanceX", 16, 3, -1, 1, Q("25 mm")),
    Sketcher.Constraint("DistanceX", 19, 3, -1, 1, Q("90 mm")),
    Sketcher.Constraint("DistanceY", 19, 3, -1, 1, Q("10 mm")),
    Sketcher.Constraint("DistanceY", 2, 1, 2, 2, Q("50 mm")),
    Sketcher.Constraint("DistanceX", 39, 2, 39, 1, Q("30.5 mm")),
    Sketcher.Constraint("DistanceY", 40, 1, 40, 2, Q("66.5 mm")),
    Sketcher.Constraint("DistanceX", 20, 3, -1, 1, Q("34 mm")),
    Sketcher.Constraint("DistanceX", 21, 3, -1, 1, Q("16 mm")),
    Sketcher.Constraint("DistanceX", 39, 2, -1, 1, Q("40.25 mm")),
    Sketcher.Constraint("DistanceY", 1, 3, -1, 1, Q("85.0195 mm")),
    Sketcher.Constraint("DistanceY", 16, 3, -1, 1, Q("93.5195 mm")),
    Sketcher.Constraint("DistanceY", 17, 3, -1, 1, Q("75.0195 mm")),
    Sketcher.Constraint("DistanceY", 18, 3, -1, 1, Q("56.5195 mm")),
    Sketcher.Constraint("DistanceY", 20, 3, -1, 1, Q("4.3195 mm")),
    Sketcher.Constraint("DistanceY", 22, 3, -1, 1, Q("90.0195 mm")),
    Sketcher.Constraint("DistanceY", -1, 1, 30, 3, Q("54.9805 mm")),
    Sketcher.Constraint("DistanceY", -1, 1, 38, 3, Q("69.9805 mm")),
    Sketcher.Constraint("DistanceY", -1, 1, 43, 3, Q("70.6805 mm")),
    Sketcher.Constraint("DistanceY", -1, 1, 45, 3, Q("139.9805 mm")),
    Sketcher.Constraint("DistanceY", -1, 1, 63, 3, Q("119.9805 mm")),
    Sketcher.Constraint("DistanceY", 39, 2, -1, 1, Q("0.0695 mm")),
])
sketch1.setExpression("Constraints[147]", "Params.sketch1_diameter")
sketch1.setExpression("Constraints[148]", "Params.sketch1_radius")
sketch1.setExpression("Constraints[149]", "Params.sketch1_radius2")
sketch1.setExpression("Constraints[150]", "Params.sketch1_radius3")
sketch1.setExpression("Constraints[151]", "Params.sketch1_diameter2")
pad1 = doc.addObject("PartDesign::Pad", "Pad")
body.addObject(pad1)
pad1.Profile = sketch1
pad1.setExpression("Length", "Params.pad1_length")

# Sketch on XY plane
sketch2 = doc.addObject("Sketcher::SketchObject", "Sketch001")
body.addObject(sketch2)
sketch2.AttachmentSupport = (doc.XY_Plane, [""])
sketch2.MapMode = "FlatFace"
sketch2.AttachmentOffset = App.Placement(V(0, 0, 10), App.Rotation())
sketch2.addGeometry([
    Part.LineSegment(V(-46.2, 56.4, 0), V(-48.2, 56.4, 0)),  # 0
    Part.ArcOfCircle(Part.Circle(V(-48.2, 55.9, 0), V(0, 0, 1), 0.5), math.radians(90), math.radians(180)),  # 1
    Part.LineSegment(V(-48.8, 55.9, 0), V(-48.8, 53.9, 0)),  # 2
    Part.ArcOfCircle(Part.Circle(V(-48.2, 53.9, 0), V(0, 0, 1), 0.5), math.radians(180), math.radians(270)),  # 3
    Part.LineSegment(V(-48.2, 53.4, 0), V(-46.2, 53.4, 0)),  # 4
    Part.ArcOfCircle(Part.Circle(V(-46.2, 53.9, 0), V(0, 0, 1), 0.5), math.radians(-90), math.radians(0)),  # 5
    Part.LineSegment(V(-45.8, 53.9, 0), V(-45.8, 55.9, 0)),  # 6
    Part.ArcOfCircle(Part.Circle(V(-46.2, 55.9, 0), V(0, 0, 1), 0.5), math.radians(0), math.radians(90)),  # 7
    Part.LineSegment(V(48.8, 53.9, 0), V(48.8, 55.9, 0)),  # 8
    Part.ArcOfCircle(Part.Circle(V(48.2, 55.9, 0), V(0, 0, 1), 0.5), math.radians(0), math.radians(90)),  # 9
    Part.LineSegment(V(48.2, 56.4, 0), V(46.2, 56.4, 0)),  # 10
    Part.ArcOfCircle(Part.Circle(V(46.2, 55.9, 0), V(0, 0, 1), 0.5), math.radians(90), math.radians(180)),  # 11
    Part.LineSegment(V(45.8, 55.9, 0), V(45.8, 53.9, 0)),  # 12
    Part.ArcOfCircle(Part.Circle(V(46.2, 53.9, 0), V(0, 0, 1), 0.5), math.radians(180), math.radians(270)),  # 13
    Part.LineSegment(V(46.2, 53.4, 0), V(48.2, 53.4, 0)),  # 14
    Part.ArcOfCircle(Part.Circle(V(48.2, 53.9, 0), V(0, 0, 1), 0.5), math.radians(-90), math.radians(0)),  # 15
    Part.LineSegment(V(1.8, 53.9, 0), V(1.8, 55.9, 0)),  # 16
    Part.ArcOfCircle(Part.Circle(V(1.2, 55.9, 0), V(0, 0, 1), 0.5), math.radians(0), math.radians(90)),  # 17
    Part.LineSegment(V(1.2, 56.4, 0), V(-0.8, 56.4, 0)),  # 18
    Part.ArcOfCircle(Part.Circle(V(-0.8, 55.9, 0), V(0, 0, 1), 0.5), math.radians(90), math.radians(180)),  # 19
    Part.LineSegment(V(-1.2, 55.9, 0), V(-1.2, 53.9, 0)),  # 20
    Part.ArcOfCircle(Part.Circle(V(-0.8, 53.9, 0), V(0, 0, 1), 0.5), math.radians(180), math.radians(270)),  # 21
    Part.LineSegment(V(-0.8, 53.4, 0), V(1.2, 53.4, 0)),  # 22
    Part.ArcOfCircle(Part.Circle(V(1.2, 53.9, 0), V(0, 0, 1), 0.5), math.radians(-90), math.radians(0)),  # 23
], False)
sketch2.addConstraint([
    Sketcher.Constraint("Tangent", 0, 2, 1, 1),
    Sketcher.Constraint("Tangent", 1, 2, 2, 1),
    Sketcher.Constraint("Tangent", 2, 2, 3, 1),
    Sketcher.Constraint("Tangent", 3, 2, 4, 1),
    Sketcher.Constraint("Tangent", 4, 2, 5, 1),
    Sketcher.Constraint("Tangent", 5, 2, 6, 1),
    Sketcher.Constraint("Tangent", 6, 2, 7, 1),
    Sketcher.Constraint("Tangent", 7, 2, 0, 1),
    Sketcher.Constraint("Tangent", 8, 2, 9, 1),
    Sketcher.Constraint("Tangent", 9, 2, 10, 1),
    Sketcher.Constraint("Tangent", 10, 2, 11, 1),
    Sketcher.Constraint("Tangent", 11, 2, 12, 1),
    Sketcher.Constraint("Tangent", 12, 2, 13, 1),
    Sketcher.Constraint("Tangent", 13, 2, 14, 1),
    Sketcher.Constraint("Tangent", 14, 2, 15, 1),
    Sketcher.Constraint("Tangent", 15, 2, 8, 1),
    Sketcher.Constraint("Tangent", 16, 2, 17, 1),
    Sketcher.Constraint("Tangent", 17, 2, 18, 1),
    Sketcher.Constraint("Tangent", 18, 2, 19, 1),
    Sketcher.Constraint("Tangent", 19, 2, 20, 1),
    Sketcher.Constraint("Tangent", 20, 2, 21, 1),
    Sketcher.Constraint("Tangent", 21, 2, 22, 1),
    Sketcher.Constraint("Tangent", 22, 2, 23, 1),
    Sketcher.Constraint("Tangent", 23, 2, 16, 1),
    Sketcher.Constraint("Horizontal", 0),
    Sketcher.Constraint("Vertical", 2),
    Sketcher.Constraint("Horizontal", 4),
    Sketcher.Constraint("Vertical", 6),
    Sketcher.Constraint("Vertical", 8),
    Sketcher.Constraint("Horizontal", 10),
    Sketcher.Constraint("Vertical", 12),
    Sketcher.Constraint("Horizontal", 14),
    Sketcher.Constraint("Vertical", 16),
    Sketcher.Constraint("Horizontal", 18),
    Sketcher.Constraint("Vertical", 20),
    Sketcher.Constraint("Horizontal", 22),
    Sketcher.Constraint("Equal", 1, 3),
    Sketcher.Constraint("Equal", 3, 5),
    Sketcher.Constraint("Equal", 5, 7),
    Sketcher.Constraint("Equal", 7, 9),
    Sketcher.Constraint("Equal", 9, 11),
    Sketcher.Constraint("Equal", 11, 13),
    Sketcher.Constraint("Equal", 13, 15),
    Sketcher.Constraint("Equal", 15, 17),
    Sketcher.Constraint("Equal", 17, 19),
    Sketcher.Constraint("Equal", 19, 21),
    Sketcher.Constraint("Equal", 21, 23),
    Sketcher.Constraint("Symmetric", 1, 3, 9, 3, -2),
    Sketcher.Constraint("Symmetric", 5, 3, 13, 3, -2),
    Sketcher.Constraint("Horizontal", 11, 3, 17, 3),
    Sketcher.Constraint("Horizontal", 15, 3, 21, 3),
    Sketcher.Constraint("Equal", 14, 18),
    Sketcher.Constraint("Equal", 22, 2),
    Sketcher.Constraint("Radius", 1, Q("0.5 mm")),
    Sketcher.Constraint("DistanceX", 0, 2, 0, 1, Q("2 mm")),
    Sketcher.Constraint("DistanceX", 17, 3, 11, 3, Q("45 mm")),
    Sketcher.Constraint("DistanceX", 7, 3, 9, 3, Q("94.5 mm")),
    Sketcher.Constraint("DistanceY", -1, 1, 1, 3, Q("55.9305 mm")),
])
sketch2.setExpression("Constraints[53]", "Params.sketch2_radius")
sketch2.setExpression("Constraints[54]", "Params.sketch2_width")
pocket1 = doc.addObject("PartDesign::Pocket", "Pocket")
body.addObject(pocket1)
pocket1.Profile = sketch2
pocket1.setExpression("Length", "Params.pocket1_length")

doc.recompute()
